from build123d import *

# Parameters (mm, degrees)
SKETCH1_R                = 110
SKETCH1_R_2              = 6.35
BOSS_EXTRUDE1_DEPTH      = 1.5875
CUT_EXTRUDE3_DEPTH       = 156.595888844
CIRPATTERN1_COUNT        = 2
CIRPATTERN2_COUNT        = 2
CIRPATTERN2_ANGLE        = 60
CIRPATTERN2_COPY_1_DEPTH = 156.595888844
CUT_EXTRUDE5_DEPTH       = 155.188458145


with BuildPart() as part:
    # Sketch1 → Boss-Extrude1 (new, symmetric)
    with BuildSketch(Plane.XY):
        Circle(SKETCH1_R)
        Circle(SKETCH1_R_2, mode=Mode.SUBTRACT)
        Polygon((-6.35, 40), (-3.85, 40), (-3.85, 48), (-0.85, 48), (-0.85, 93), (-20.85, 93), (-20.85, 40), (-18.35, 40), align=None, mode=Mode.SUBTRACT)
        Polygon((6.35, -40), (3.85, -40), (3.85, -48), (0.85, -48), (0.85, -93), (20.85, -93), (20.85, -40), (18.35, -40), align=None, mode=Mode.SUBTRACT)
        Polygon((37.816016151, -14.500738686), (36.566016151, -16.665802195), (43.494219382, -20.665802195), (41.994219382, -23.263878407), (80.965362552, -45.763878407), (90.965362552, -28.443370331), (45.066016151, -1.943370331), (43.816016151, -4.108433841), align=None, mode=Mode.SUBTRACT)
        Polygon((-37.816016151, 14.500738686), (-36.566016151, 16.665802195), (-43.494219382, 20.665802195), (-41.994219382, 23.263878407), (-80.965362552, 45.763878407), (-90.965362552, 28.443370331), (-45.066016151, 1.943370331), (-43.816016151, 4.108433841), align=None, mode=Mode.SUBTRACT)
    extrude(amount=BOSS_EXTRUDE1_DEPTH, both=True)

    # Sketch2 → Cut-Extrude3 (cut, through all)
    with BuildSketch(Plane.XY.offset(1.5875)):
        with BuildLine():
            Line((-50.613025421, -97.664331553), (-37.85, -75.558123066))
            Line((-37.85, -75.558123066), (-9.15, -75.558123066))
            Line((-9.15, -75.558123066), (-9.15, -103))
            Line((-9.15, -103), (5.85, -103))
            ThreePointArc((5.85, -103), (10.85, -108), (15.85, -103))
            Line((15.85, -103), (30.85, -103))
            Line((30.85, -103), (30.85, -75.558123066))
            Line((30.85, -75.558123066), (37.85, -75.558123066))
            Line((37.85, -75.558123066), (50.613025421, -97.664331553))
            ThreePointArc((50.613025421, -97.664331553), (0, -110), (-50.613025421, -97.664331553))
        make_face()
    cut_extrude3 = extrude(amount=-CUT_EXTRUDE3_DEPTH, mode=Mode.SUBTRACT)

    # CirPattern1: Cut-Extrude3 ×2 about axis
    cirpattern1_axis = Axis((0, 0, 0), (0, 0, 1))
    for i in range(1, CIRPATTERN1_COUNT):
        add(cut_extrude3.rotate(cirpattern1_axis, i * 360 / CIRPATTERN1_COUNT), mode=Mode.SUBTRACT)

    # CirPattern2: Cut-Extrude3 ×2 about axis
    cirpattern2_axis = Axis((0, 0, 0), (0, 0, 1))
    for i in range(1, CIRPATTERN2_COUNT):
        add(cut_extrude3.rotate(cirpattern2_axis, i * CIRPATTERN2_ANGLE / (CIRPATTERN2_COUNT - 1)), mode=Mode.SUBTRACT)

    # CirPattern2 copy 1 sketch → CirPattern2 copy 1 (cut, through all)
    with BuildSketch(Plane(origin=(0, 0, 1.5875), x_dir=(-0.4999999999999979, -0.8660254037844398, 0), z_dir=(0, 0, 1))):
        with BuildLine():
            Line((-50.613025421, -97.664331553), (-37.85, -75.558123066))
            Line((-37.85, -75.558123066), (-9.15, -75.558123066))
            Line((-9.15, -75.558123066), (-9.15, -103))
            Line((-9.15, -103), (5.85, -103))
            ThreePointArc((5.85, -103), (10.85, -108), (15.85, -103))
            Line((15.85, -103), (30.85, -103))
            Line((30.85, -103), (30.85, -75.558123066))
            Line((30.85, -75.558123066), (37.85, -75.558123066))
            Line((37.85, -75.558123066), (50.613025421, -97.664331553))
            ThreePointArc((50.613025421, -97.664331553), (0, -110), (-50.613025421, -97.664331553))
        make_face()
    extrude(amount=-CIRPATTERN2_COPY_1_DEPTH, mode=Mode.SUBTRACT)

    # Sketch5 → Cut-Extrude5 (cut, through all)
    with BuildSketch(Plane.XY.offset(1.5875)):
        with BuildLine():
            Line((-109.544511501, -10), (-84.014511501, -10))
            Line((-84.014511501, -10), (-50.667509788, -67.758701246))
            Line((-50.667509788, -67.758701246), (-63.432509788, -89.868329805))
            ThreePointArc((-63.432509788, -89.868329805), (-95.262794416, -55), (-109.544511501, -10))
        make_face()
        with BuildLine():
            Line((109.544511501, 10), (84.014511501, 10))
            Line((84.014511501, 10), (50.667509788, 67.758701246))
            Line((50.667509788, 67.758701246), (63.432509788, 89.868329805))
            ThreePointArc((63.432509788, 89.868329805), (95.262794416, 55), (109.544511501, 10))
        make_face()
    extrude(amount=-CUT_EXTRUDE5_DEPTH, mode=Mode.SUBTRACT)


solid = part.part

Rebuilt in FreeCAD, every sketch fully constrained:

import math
import FreeCAD as App
import Part
import Sketcher
from FreeCAD import Vector
Q = App.Units.Quantity

doc = App.newDocument("Part")
body = doc.addObject("PartDesign::Body", "Body")

# Sketch on XY plane
sketch1 = body.newObject("Sketcher::SketchObject", "Sketch")
sketch1.AttachmentSupport = (doc.getObject("XY_Plane"), [""])
sketch1.MapMode = "FlatFace"
sketch1.addGeometry([
    Part.Circle(Vector(0, 0, 0), Vector(0, 0, 1), 110),  # 0
    Part.LineSegment(Vector(3.9, -40, 0), Vector(20.9, -40, 0)),  # 1
    Part.LineSegment(Vector(20.9, -40, 0), Vector(20.9, -93, 0)),  # 2
    Part.LineSegment(Vector(20.9, -93, 0), Vector(0.8, -93, 0)),  # 3
    Part.LineSegment(Vector(0.8, -93, 0), Vector(0.8, -48, 0)),  # 4
    Part.LineSegment(Vector(0.8, -48, 0), Vector(3.9, -48, 0)),  # 5
    Part.LineSegment(Vector(3.9, -48, 0), Vector(3.9, -40, 0)),  # 6
    Part.LineSegment(Vector(36.6, -16.7, 0), Vector(37.8, -14.5, 0)),  # 7
    Part.LineSegment(Vector(37.8, -14.5, 0), Vector(43.8, -4.1, 0)),  # 8
    Part.LineSegment(Vector(43.8, -4.1, 0), Vector(45.1, -1.9, 0)),  # 9
    Part.LineSegment(Vector(45.1, -1.9, 0), Vector(91, -28.4, 0)),  # 10
    Part.LineSegment(Vector(91, -28.4, 0), Vector(81, -45.8, 0)),  # 11
    Part.LineSegment(Vector(81, -45.8, 0), Vector(42, -23.3, 0)),  # 12
    Part.LineSegment(Vector(42, -23.3, 0), Vector(43.5, -20.7, 0)),  # 13
    Part.LineSegment(Vector(43.5, -20.7, 0), Vector(36.6, -16.7, 0)),  # 14
    Part.LineSegment(Vector(-36.6, 16.7, 0), Vector(-37.8, 14.5, 0)),  # 15
    Part.LineSegment(Vector(-37.8, 14.5, 0), Vector(-43.8, 4.1, 0)),  # 16
    Part.LineSegment(Vector(-43.8, 4.1, 0), Vector(-45.1, 1.9, 0)),  # 17
    Part.LineSegment(Vector(-45.1, 1.9, 0), Vector(-91, 28.4, 0)),  # 18
    Part.LineSegment(Vector(-91, 28.4, 0), Vector(-81, 45.8, 0)),  # 19
    Part.LineSegment(Vector(-81, 45.8, 0), Vector(-42, 23.3, 0)),  # 20
    Part.LineSegment(Vector(-42, 23.3, 0), Vector(-43.5, 20.7, 0)),  # 21
    Part.LineSegment(Vector(-43.5, 20.7, 0), Vector(-36.6, 16.7, 0)),  # 22
    Part.LineSegment(Vector(-3.9, 40, 0), Vector(-20.9, 40, 0)),  # 23
    Part.LineSegment(Vector(-20.9, 40, 0), Vector(-20.9, 93, 0)),  # 24
    Part.LineSegment(Vector(-20.9, 93, 0), Vector(-0.8, 93, 0)),  # 25
    Part.LineSegment(Vector(-0.8, 93, 0), Vector(-0.8, 48, 0)),  # 26
    Part.LineSegment(Vector(-0.8, 48, 0), Vector(-3.9, 48, 0)),  # 27
    Part.LineSegment(Vector(-3.9, 48, 0), Vector(-3.9, 40, 0)),  # 28
    Part.Circle(Vector(0, 0, 0), Vector(0, 0, 1), 6.3),  # 29
], False)
sketch1.addConstraint([
    Sketcher.Constraint("Coincident", 1, 2, 2, 1),
    Sketcher.Constraint("Coincident", 2, 2, 3, 1),
    Sketcher.Constraint("Coincident", 3, 2, 4, 1),
    Sketcher.Constraint("Coincident", 4, 2, 5, 1),
    Sketcher.Constraint("Coincident", 5, 2, 6, 1),
    Sketcher.Constraint("Coincident", 6, 2, 1, 1),
    Sketcher.Constraint("Coincident", 7, 2, 8, 1),
    Sketcher.Constraint("Coincident", 8, 2, 9, 1),
    Sketcher.Constraint("Coincident", 9, 2, 10, 1),
    Sketcher.Constraint("Coincident", 10, 2, 11, 1),
    Sketcher.Constraint("Coincident", 11, 2, 12, 1),
    Sketcher.Constraint("Coincident", 12, 2, 13, 1),
    Sketcher.Constraint("Coincident", 13, 2, 14, 1),
    Sketcher.Constraint("Coincident", 14, 2, 7, 1),
    Sketcher.Constraint("Coincident", 15, 2, 16, 1),
    Sketcher.Constraint("Coincident", 16, 2, 17, 1),
    Sketcher.Constraint("Coincident", 17, 2, 18, 1),
    Sketcher.Constraint("Coincident", 18, 2, 19, 1),
    Sketcher.Constraint("Coincident", 19, 2, 20, 1),
    Sketcher.Constraint("Coincident", 20, 2, 21, 1),
    Sketcher.Constraint("Coincident", 21, 2, 22, 1),
    Sketcher.Constraint("Coincident", 22, 2, 15, 1),
    Sketcher.Constraint("Coincident", 23, 2, 24, 1),
    Sketcher.Constraint("Coincident", 24, 2, 25, 1),
    Sketcher.Constraint("Coincident", 25, 2, 26, 1),
    Sketcher.Constraint("Coincident", 26, 2, 27, 1),
    Sketcher.Constraint("Coincident", 27, 2, 28, 1),
    Sketcher.Constraint("Coincident", 28, 2, 23, 1),
    Sketcher.Constraint("Horizontal", 1),
    Sketcher.Constraint("Vertical", 2),
    Sketcher.Constraint("Horizontal", 3),
    Sketcher.Constraint("Vertical", 4),
    Sketcher.Constraint("Horizontal", 5),
    Sketcher.Constraint("Vertical", 6),
    Sketcher.Constraint("Horizontal", 23),
    Sketcher.Constraint("Vertical", 24),
    Sketcher.Constraint("Horizontal", 25),
    Sketcher.Constraint("Vertical", 26),
    Sketcher.Constraint("Horizontal", 27),
    Sketcher.Constraint("Vertical", 28),
    Sketcher.Constraint("Coincident", 0, 3, -1, 1),
    Sketcher.Constraint("Coincident", 29, 3, -1, 1),
    Sketcher.Constraint("Symmetric", 7, 2, 15, 2, -1, 1),
    Sketcher.Constraint("Symmetric", 8, 2, 16, 2, -1, 1),
    Sketcher.Constraint("Symmetric", 9, 2, 17, 2, -1, 1),
    Sketcher.Constraint("Symmetric", 10, 2, 18, 2, -1, 1),
    Sketcher.Constraint("Symmetric", 11, 2, 19, 2, -1, 1),
    Sketcher.Constraint("Symmetric", 12, 2, 20, 2, -1, 1),
    Sketcher.Constraint("Symmetric", 13, 2, 21, 2, -1, 1),
    Sketcher.Constraint("Symmetric", 14, 2, 22, 2, -1, 1),
    Sketcher.Constraint("Symmetric", 1, 2, 23, 2, -1, 1),
    Sketcher.Constraint("Symmetric", 3, 2, 25, 2, -1, 1),
    Sketcher.Constraint("Symmetric", 5, 2, 27, 2, -1, 1),
    Sketcher.Constraint("Parallel", 7, 8),
    Sketcher.Constraint("Parallel", 8, 9),
    Sketcher.Constraint("Perpendicular", 9, 10),
    Sketcher.Constraint("Perpendicular", 10, 11),
    Sketcher.Constraint("Perpendicular", 11, 12),
    Sketcher.Constraint("Perpendicular", 12, 13),
    Sketcher.Constraint("Perpendicular", 13, 14),
    Sketcher.Constraint("Equal", 7, 9),
    Sketcher.Constraint("Diameter", 0, 220.0),
    Sketcher.Constraint("Diameter", 29, 12.7),
    Sketcher.Constraint("DistanceX", 1, 1, 1, 2, 17.0),
    Sketcher.Constraint("DistanceX", 3, 2, 3, 1, 20.0),
    Sketcher.Constraint("DistanceY", 2, 2, 2, 1, 53.0),
    Sketcher.Constraint("DistanceY", 4, 1, 4, 2, 45.0),
    Sketcher.Constraint("Angle", 7, Q("60 deg")),
    Sketcher.Constraint("Distance", 8, 12.0),
    Sketcher.Constraint("Distance", 10, 53.0),
    Sketcher.Constraint("Distance", 11, 20.0),
    Sketcher.Constraint("Distance", 12, 45.0),
    Sketcher.Constraint("Distance", 13, 3.0),
    Sketcher.Constraint("DistanceY", 1, 2, -1, 1, 40.0),
    Sketcher.Constraint("DistanceX", -1, 1, 1, 2, 20.85),
    Sketcher.Constraint("DistanceY", 7, 2, -1, 1, 14.500739),
    Sketcher.Constraint("DistanceX", -1, 1, 12, 2, 41.994219),
])
pad1 = body.newObject("PartDesign::Pad", "Pad")
pad1.Profile = sketch1
pad1.Length = 3.175
pad1.Midplane = True

# Sketch on XY plane
sketch2 = body.newObject("Sketcher::SketchObject", "Sketch001")
sketch2.AttachmentSupport = (doc.getObject("XY_Plane"), [""])
sketch2.MapMode = "FlatFace"
sketch2.AttachmentOffset = App.Placement(Vector(0, 0, 1.5875), App.Rotation())
sketch2.addGeometry([
    Part.LineSegment(Vector(-38, -76, 0), Vector(-51, -98, 0)),  # 0
    Part.ArcOfCircle(Part.Circle(Vector(0, 0, 0), Vector(0, 0, 1), 110), math.radians(-117), math.radians(-63)),  # 1
    Part.LineSegment(Vector(51, -98, 0), Vector(38, -76, 0)),  # 2
    Part.LineSegment(Vector(38, -76, 0), Vector(31, -76, 0)),  # 3
    Part.LineSegment(Vector(31, -76, 0), Vector(31, -103, 0)),  # 4
    Part.LineSegment(Vector(31, -103, 0), Vector(16, -103, 0)),  # 5
    Part.ArcOfCircle(Part.Circle(Vector(11, -103, 0), Vector(0, 0, 1), 5), math.radians(180), math.radians(360)),  # 6
    Part.LineSegment(Vector(6, -103, 0), Vector(-9, -103, 0)),  # 7
    Part.LineSegment(Vector(-9, -103, 0), Vector(-9, -76, 0)),  # 8
    Part.LineSegment(Vector(-9, -76, 0), Vector(-38, -76, 0)),  # 9
], False)
sketch2.addConstraint([
    Sketcher.Constraint("Coincident", 0, 2, 1, 1),
    Sketcher.Constraint("Coincident", 1, 2, 2, 1),
    Sketcher.Constraint("Coincident", 2, 2, 3, 1),
    Sketcher.Constraint("Coincident", 3, 2, 4, 1),
    Sketcher.Constraint("Coincident", 4, 2, 5, 1),
    Sketcher.Constraint("Coincident", 5, 2, 6, 2),
    Sketcher.Constraint("Coincident", 6, 1, 7, 1),
    Sketcher.Constraint("Coincident", 7, 2, 8, 1),
    Sketcher.Constraint("Coincident", 8, 2, 9, 1),
    Sketcher.Constraint("Coincident", 9, 2, 0, 1),
    Sketcher.Constraint("Horizontal", 3),
    Sketcher.Constraint("Vertical", 4),
    Sketcher.Constraint("Horizontal", 5),
    Sketcher.Constraint("Horizontal", 7),
    Sketcher.Constraint("Vertical", 8),
    Sketcher.Constraint("Horizontal", 9),
    Sketcher.Constraint("Coincident", 1, 3, -1, 1),
    Sketcher.Constraint("Symmetric", 2, 2, 9, 2, -2),
    Sketcher.Constraint("Horizontal", 0, 2, 1, 2),
    Sketcher.Constraint("Horizontal", 6, 3, 4, 2),
    Sketcher.Constraint("Horizontal", 5, 2, 6, 1),
    Sketcher.Constraint("Equal", 5, 7),
    Sketcher.Constraint("Radius", 1, 110.0),
    Sketcher.Constraint("Radius", 6, 5.0),
    Sketcher.Constraint("DistanceX", 3, 2, 3, 1, 7.0),
    Sketcher.Constraint("DistanceX", 5, 2, 5, 1, 15.0),
    Sketcher.Constraint("Angle", 0, Q("-120 deg")),
    Sketcher.Constraint("DistanceX", 9, 2, 9, 1, 28.7),
    Sketcher.Constraint("DistanceY", 6, 3, -1, 1, 103.0),
    Sketcher.Constraint("Distance", 0, 25.526051),
])
pocket1 = body.newObject("PartDesign::Pocket", "Pocket")
pocket1.Profile = sketch2
pocket1.Type = "ThroughAll"
doc.recompute()

polarpattern = body.newObject("PartDesign::PolarPattern", "PolarPattern")
polarpattern.Originals = [pocket1]
polarpattern.Axis = (doc.getObject("Z_Axis"), [""])
polarpattern.Angle = 360
polarpattern.Occurrences = 2
body.Tip = polarpattern
doc.recompute()

polarpattern2 = body.newObject("PartDesign::PolarPattern", "PolarPattern001")
polarpattern2.Originals = [pocket1]
polarpattern2.Axis = (doc.getObject("Z_Axis"), [""])
polarpattern2.Angle = 60
polarpattern2.Occurrences = 2
body.Tip = polarpattern2

# Sketch on XY plane
sketch3 = body.newObject("Sketcher::SketchObject", "Sketch002")
sketch3.AttachmentSupport = (doc.getObject("XY_Plane"), [""])
sketch3.MapMode = "FlatFace"
sketch3.AttachmentOffset = App.Placement(Vector(0, 0, 1.5875), App.Rotation())
sketch3.addGeometry([
    Part.LineSegment(Vector(-47, 71, 0), Vector(-59, 93, 0)),  # 0
    Part.ArcOfCircle(Part.Circle(Vector(0, 0, 0), Vector(0, 0, 1), 110), math.radians(123), math.radians(177)),  # 1
    Part.LineSegment(Vector(-110, 5, 0), Vector(-84, 5, 0)),  # 2
    Part.LineSegment(Vector(-84, 5, 0), Vector(-81, 11, 0)),  # 3
    Part.LineSegment(Vector(-81, 11, 0), Vector(-105, 25, 0)),  # 4
    Part.LineSegment(Vector(-105, 25, 0), Vector(-97, 38, 0)),  # 5
    Part.ArcOfCircle(Part.Circle(Vector(-95, 42, 0), Vector(0, 0, 1), 5), math.radians(60), math.radians(240)),  # 6
    Part.LineSegment(Vector(-92, 46, 0), Vector(-85, 59, 0)),  # 7
    Part.LineSegment(Vector(-85, 59, 0), Vector(-61, 46, 0)),  # 8
    Part.LineSegment(Vector(-61, 46, 0), Vector(-47, 71, 0)),  # 9
], False)
sketch3.addConstraint([
    Sketcher.Constraint("Coincident", 0, 2, 1, 1),
    Sketcher.Constraint("Coincident", 1, 2, 2, 1),
    Sketcher.Constraint("Coincident", 2, 2, 3, 1),
    Sketcher.Constraint("Coincident", 3, 2, 4, 1),
    Sketcher.Constraint("Coincident", 4, 2, 5, 1),
    Sketcher.Constraint("Coincident", 5, 2, 6, 2),
    Sketcher.Constraint("Coincident", 6, 1, 7, 1),
    Sketcher.Constraint("Coincident", 7, 2, 8, 1),
    Sketcher.Constraint("Coincident", 8, 2, 9, 1),
    Sketcher.Constraint("Coincident", 9, 2, 0, 1),
    Sketcher.Constraint("Horizontal", 2),
    Sketcher.Constraint("Coincident", 1, 3, -1, 1),
    Sketcher.Constraint("Perpendicular", 3, 4),
    Sketcher.Constraint("Perpendicular", 4, 5),
    Sketcher.Constraint("Parallel", 5, 7),
    Sketcher.Constraint("Perpendicular", 7, 8),
    Sketcher.Constraint("Perpendicular", 8, 9),
    Sketcher.Constraint("Equal", 5, 7),
    Sketcher.Constraint("Equal", 4, 8),
    Sketcher.Constraint("Radius", 1, 110.0),
    Sketcher.Constraint("Radius", 6, 5.0),
    Sketcher.Constraint("Angle", 0, Q("120 deg")),
    Sketcher.Constraint("Angle", 3, Q("60 deg")),
    Sketcher.Constraint("Distance", 3, 7.0),
    Sketcher.Constraint("Distance", 5, 15.0),
    Sketcher.Constraint("DistanceY", -1, 1, 1, 2, 5.0),
    Sketcher.Constraint("DistanceX", 4, 2, 6, 3, 10.0),
    Sketcher.Constraint("DistanceX", 5, 2, 6, 1, 5.0),
    Sketcher.Constraint("Distance", 9, 28.7),
    Sketcher.Constraint("DistanceX", 2, 1, 2, 2, 25.526051),
    Sketcher.Constraint("DistanceY", 7, 2, 0, 2, 33.240199),
])
pocket2 = body.newObject("PartDesign::Pocket", "Pocket001")
pocket2.Profile = sketch3
pocket2.Type = "ThroughAll"

# Sketch on XY plane
sketch4 = body.newObject("Sketcher::SketchObject", "Sketch003")
sketch4.AttachmentSupport = (doc.getObject("XY_Plane"), [""])
sketch4.MapMode = "FlatFace"
sketch4.AttachmentOffset = App.Placement(Vector(0, 0, 1.5875), App.Rotation())
sketch4.addGeometry([
    Part.LineSegment(Vector(-84, -10, 0), Vector(-110, -10, 0)),  # 0
    Part.ArcOfCircle(Part.Circle(Vector(0, 0, 0), Vector(0, 0, 1), 110), math.radians(-175), math.radians(-125)),  # 1
    Part.LineSegment(Vector(-63, -90, 0), Vector(-51, -68, 0)),  # 2
    Part.LineSegment(Vector(-51, -68, 0), Vector(-84, -10, 0)),  # 3
    Part.LineSegment(Vector(84, 10, 0), Vector(110, 10, 0)),  # 4
    Part.ArcOfCircle(Part.Circle(Vector(0, 0, 0), Vector(0, 0, 1), 110), math.radians(5), math.radians(55)),  # 5
    Part.LineSegment(Vector(63, 90, 0), Vector(51, 68, 0)),  # 6
    Part.LineSegment(Vector(51, 68, 0), Vector(84, 10, 0)),  # 7
], False)
sketch4.addConstraint([
    Sketcher.Constraint("Coincident", 0, 2, 1, 1),
    Sketcher.Constraint("Coincident", 1, 2, 2, 1),
    Sketcher.Constraint("Coincident", 2, 2, 3, 1),
    Sketcher.Constraint("Coincident", 3, 2, 0, 1),
    Sketcher.Constraint("Coincident", 4, 2, 5, 1),
    Sketcher.Constraint("Coincident", 5, 2, 6, 1),
    Sketcher.Constraint("Coincident", 6, 2, 7, 1),
    Sketcher.Constraint("Coincident", 7, 2, 4, 1),
    Sketcher.Constraint("Horizontal", 0),
    Sketcher.Constraint("Horizontal", 4),
    Sketcher.Constraint("Coincident", 1, 3, -1, 1),
    Sketcher.Constraint("Coincident", 5, 3, -1, 1),
    Sketcher.Constraint("Equal", 1, 5),
    Sketcher.Constraint("Symmetric", 2, 2, 6, 2, -1, 1),
    Sketcher.Constraint("Symmetric", 3, 2, 7, 2, -1, 1),
    Sketcher.Constraint("Parallel", 2, 6),
    Sketcher.Constraint("Radius", 1, 110.0),
    Sketcher.Constraint("Angle", 2, Q("60 deg")),
    Sketcher.Constraint("Angle", 3, Q("120 deg")),
    Sketcher.Constraint("DistanceY", 0, 2, -1, 1, 10.0),
    Sketcher.Constraint("DistanceX", 0, 2, 0, 1, 25.53),
    Sketcher.Constraint("Distance", 2, 25.53),
])
pocket3 = body.newObject("PartDesign::Pocket", "Pocket002")
pocket3.Profile = sketch4
pocket3.Type = "ThroughAll"

doc.recompute()
